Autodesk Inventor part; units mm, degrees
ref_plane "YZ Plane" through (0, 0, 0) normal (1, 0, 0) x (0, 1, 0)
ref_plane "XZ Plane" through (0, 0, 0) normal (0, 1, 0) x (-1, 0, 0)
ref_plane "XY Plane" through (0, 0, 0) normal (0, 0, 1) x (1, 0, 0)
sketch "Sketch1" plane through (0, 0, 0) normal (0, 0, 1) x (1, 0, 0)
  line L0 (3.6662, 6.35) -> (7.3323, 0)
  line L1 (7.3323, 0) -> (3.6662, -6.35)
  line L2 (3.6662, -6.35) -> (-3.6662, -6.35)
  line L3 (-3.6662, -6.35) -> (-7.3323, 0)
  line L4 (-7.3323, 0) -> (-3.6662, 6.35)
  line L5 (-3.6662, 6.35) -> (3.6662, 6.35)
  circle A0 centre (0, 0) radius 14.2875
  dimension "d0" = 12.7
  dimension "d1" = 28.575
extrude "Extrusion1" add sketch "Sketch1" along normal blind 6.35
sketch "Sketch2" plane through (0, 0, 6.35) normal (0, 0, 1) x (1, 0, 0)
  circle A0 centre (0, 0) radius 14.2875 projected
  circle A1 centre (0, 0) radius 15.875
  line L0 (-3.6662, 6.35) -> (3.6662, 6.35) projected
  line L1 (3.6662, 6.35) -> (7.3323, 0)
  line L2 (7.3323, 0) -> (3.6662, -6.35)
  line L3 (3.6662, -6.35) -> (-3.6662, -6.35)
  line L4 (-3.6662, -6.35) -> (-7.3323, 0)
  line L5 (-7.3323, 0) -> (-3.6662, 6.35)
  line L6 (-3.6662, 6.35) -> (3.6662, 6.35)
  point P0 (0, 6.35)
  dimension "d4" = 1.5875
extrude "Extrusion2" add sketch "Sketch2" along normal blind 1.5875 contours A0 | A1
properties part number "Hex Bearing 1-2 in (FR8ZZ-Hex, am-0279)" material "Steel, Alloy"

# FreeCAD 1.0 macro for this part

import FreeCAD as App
import Part
import Sketcher
Q = App.Units.Quantity


def add_polygon(sketch, points):
    """Adds a closed chain of lines whose ends are joined by coincident constraints."""
    first, n = sketch.GeometryCount, len(points)
    for a, b in zip(points, points[1:] + points[:1]):
        sketch.addGeometry(Part.LineSegment(App.Vector(*a, 0), App.Vector(*b, 0)), False)
    for i in range(n):
        sketch.addConstraint(Sketcher.Constraint("Coincident", first + i, 2, first + (i + 1) % n, 1))

doc = App.newDocument("Part")
params = doc.addObject("Spreadsheet::Sheet", "Params")
for row, (alias, value) in enumerate([
    ("sketch1_diameter", "1.125 in"),
    ("pad1_length", "0.25 in"),
    ("sketch2_diameter", "1.25 in"),
    ("pad2_length", "0.0625 in"),
], start=1):
    params.set(f"A{row}", alias)
    params.set(f"B{row}", "=" + value)
    params.setAlias(f"B{row}", alias)

body = doc.addObject("PartDesign::Body", "Body")

# Sketch on XY plane
sketch1 = body.newObject("Sketcher::SketchObject", "Sketch")
sketch1.AttachmentSupport = (doc.getObject("XY_Plane"), [""])
sketch1.MapMode = "FlatFace"
sketch1.addGeometry(Part.Circle(App.Vector(0, 0, 0), App.Vector(0, 0, 1), 14), False)  # 0
add_polygon(sketch1, [(-4, 6), (4, 6), (7, 0), (4, -6), (-4, -6), (-7, 0)])  # lines 1-6
sketch1.addConstraint(Sketcher.Constraint("Horizontal", 1))
sketch1.addConstraint(Sketcher.Constraint("Horizontal", 4))
sketch1.addConstraint(Sketcher.Constraint("Coincident", 0, 3, -1, 1))
sketch1.addConstraint(Sketcher.Constraint("Symmetric", 1, 2, 4, 2, -1, 1))
sketch1.addConstraint(Sketcher.Constraint("Symmetric", 2, 2, 5, 2, -1, 1))
sketch1.addConstraint(Sketcher.Constraint("PointOnObject", 2, 2, -1))
sketch1.addConstraint(Sketcher.Constraint("Parallel", 3, 6))
sketch1.addConstraint(Sketcher.Constraint("Vertical", 1, 2, 3, 2))
sketch1.addConstraint(Sketcher.Constraint("Diameter", 0, Q("1.125 in")))
sketch1.addConstraint(Sketcher.Constraint("DistanceY", 3, 2, 1, 2, Q("0.5 in")))
sketch1.addConstraint(Sketcher.Constraint("Angle", 2, Q("-60.0005 deg")))
sketch1.addConstraint(Sketcher.Constraint("DistanceX", 4, 2, 2, 2, Q("0.433 in")))
sketch1.setExpression("Constraints[14]", "Params.sketch1_diameter")
pad1 = body.newObject("PartDesign::Pad", "Pad")
pad1.Profile = sketch1
pad1.setExpression("Length", "Params.pad1_length")

# Sketch on XY plane
sketch2 = body.newObject("Sketcher::SketchObject", "Sketch001")
sketch2.AttachmentSupport = (doc.getObject("XY_Plane"), [""])
sketch2.MapMode = "FlatFace"
sketch2.AttachmentOffset = App.Placement(App.Vector(0, 0, 0.25 * 25.4), App.Rotation())
sketch2.addGeometry(Part.Circle(App.Vector(0, 0, 0), App.Vector(0, 0, 1), 16), False)  # 0
add_polygon(sketch2, [(-7, 0), (-4, 6), (4, 6), (7, 0), (4, -6), (-4, -6)])  # lines 1-6
sketch2.addConstraint(Sketcher.Constraint("Horizontal", 2))
sketch2.addConstraint(Sketcher.Constraint("Horizontal", 5))
sketch2.addConstraint(Sketcher.Constraint("Coincident", 0, 3, -1, 1))
sketch2.addConstraint(Sketcher.Constraint("Symmetric", 1, 2, 4, 2, -1, 1))
sketch2.addConstraint(Sketcher.Constraint("Symmetric", 3, 2, 6, 2, -1, 1))
sketch2.addConstraint(Sketcher.Constraint("PointOnObject", 3, 2, -1))
sketch2.addConstraint(Sketcher.Constraint("Parallel", 3, 6))
sketch2.addConstraint(Sketcher.Constraint("Vertical", 2, 2, 4, 2))
sketch2.addConstraint(Sketcher.Constraint("Diameter", 0, Q("1.25 in")))
sketch2.addConstraint(Sketcher.Constraint("Angle", 1, Q("60.0005 deg")))
sketch2.addConstraint(Sketcher.Constraint("DistanceY", 4, 2, 2, 2, Q("0.5 in")))
sketch2.addConstraint(Sketcher.Constraint("DistanceX", 1, 2, 3, 2, Q("0.433 in")))
sketch2.setExpression("Constraints[14]", "Params.sketch2_diameter")
pad2 = body.newObject("PartDesign::Pad", "Pad001")
pad2.Profile = sketch2
pad2.setExpression("Length", "Params.pad2_length")

doc.recompute()
